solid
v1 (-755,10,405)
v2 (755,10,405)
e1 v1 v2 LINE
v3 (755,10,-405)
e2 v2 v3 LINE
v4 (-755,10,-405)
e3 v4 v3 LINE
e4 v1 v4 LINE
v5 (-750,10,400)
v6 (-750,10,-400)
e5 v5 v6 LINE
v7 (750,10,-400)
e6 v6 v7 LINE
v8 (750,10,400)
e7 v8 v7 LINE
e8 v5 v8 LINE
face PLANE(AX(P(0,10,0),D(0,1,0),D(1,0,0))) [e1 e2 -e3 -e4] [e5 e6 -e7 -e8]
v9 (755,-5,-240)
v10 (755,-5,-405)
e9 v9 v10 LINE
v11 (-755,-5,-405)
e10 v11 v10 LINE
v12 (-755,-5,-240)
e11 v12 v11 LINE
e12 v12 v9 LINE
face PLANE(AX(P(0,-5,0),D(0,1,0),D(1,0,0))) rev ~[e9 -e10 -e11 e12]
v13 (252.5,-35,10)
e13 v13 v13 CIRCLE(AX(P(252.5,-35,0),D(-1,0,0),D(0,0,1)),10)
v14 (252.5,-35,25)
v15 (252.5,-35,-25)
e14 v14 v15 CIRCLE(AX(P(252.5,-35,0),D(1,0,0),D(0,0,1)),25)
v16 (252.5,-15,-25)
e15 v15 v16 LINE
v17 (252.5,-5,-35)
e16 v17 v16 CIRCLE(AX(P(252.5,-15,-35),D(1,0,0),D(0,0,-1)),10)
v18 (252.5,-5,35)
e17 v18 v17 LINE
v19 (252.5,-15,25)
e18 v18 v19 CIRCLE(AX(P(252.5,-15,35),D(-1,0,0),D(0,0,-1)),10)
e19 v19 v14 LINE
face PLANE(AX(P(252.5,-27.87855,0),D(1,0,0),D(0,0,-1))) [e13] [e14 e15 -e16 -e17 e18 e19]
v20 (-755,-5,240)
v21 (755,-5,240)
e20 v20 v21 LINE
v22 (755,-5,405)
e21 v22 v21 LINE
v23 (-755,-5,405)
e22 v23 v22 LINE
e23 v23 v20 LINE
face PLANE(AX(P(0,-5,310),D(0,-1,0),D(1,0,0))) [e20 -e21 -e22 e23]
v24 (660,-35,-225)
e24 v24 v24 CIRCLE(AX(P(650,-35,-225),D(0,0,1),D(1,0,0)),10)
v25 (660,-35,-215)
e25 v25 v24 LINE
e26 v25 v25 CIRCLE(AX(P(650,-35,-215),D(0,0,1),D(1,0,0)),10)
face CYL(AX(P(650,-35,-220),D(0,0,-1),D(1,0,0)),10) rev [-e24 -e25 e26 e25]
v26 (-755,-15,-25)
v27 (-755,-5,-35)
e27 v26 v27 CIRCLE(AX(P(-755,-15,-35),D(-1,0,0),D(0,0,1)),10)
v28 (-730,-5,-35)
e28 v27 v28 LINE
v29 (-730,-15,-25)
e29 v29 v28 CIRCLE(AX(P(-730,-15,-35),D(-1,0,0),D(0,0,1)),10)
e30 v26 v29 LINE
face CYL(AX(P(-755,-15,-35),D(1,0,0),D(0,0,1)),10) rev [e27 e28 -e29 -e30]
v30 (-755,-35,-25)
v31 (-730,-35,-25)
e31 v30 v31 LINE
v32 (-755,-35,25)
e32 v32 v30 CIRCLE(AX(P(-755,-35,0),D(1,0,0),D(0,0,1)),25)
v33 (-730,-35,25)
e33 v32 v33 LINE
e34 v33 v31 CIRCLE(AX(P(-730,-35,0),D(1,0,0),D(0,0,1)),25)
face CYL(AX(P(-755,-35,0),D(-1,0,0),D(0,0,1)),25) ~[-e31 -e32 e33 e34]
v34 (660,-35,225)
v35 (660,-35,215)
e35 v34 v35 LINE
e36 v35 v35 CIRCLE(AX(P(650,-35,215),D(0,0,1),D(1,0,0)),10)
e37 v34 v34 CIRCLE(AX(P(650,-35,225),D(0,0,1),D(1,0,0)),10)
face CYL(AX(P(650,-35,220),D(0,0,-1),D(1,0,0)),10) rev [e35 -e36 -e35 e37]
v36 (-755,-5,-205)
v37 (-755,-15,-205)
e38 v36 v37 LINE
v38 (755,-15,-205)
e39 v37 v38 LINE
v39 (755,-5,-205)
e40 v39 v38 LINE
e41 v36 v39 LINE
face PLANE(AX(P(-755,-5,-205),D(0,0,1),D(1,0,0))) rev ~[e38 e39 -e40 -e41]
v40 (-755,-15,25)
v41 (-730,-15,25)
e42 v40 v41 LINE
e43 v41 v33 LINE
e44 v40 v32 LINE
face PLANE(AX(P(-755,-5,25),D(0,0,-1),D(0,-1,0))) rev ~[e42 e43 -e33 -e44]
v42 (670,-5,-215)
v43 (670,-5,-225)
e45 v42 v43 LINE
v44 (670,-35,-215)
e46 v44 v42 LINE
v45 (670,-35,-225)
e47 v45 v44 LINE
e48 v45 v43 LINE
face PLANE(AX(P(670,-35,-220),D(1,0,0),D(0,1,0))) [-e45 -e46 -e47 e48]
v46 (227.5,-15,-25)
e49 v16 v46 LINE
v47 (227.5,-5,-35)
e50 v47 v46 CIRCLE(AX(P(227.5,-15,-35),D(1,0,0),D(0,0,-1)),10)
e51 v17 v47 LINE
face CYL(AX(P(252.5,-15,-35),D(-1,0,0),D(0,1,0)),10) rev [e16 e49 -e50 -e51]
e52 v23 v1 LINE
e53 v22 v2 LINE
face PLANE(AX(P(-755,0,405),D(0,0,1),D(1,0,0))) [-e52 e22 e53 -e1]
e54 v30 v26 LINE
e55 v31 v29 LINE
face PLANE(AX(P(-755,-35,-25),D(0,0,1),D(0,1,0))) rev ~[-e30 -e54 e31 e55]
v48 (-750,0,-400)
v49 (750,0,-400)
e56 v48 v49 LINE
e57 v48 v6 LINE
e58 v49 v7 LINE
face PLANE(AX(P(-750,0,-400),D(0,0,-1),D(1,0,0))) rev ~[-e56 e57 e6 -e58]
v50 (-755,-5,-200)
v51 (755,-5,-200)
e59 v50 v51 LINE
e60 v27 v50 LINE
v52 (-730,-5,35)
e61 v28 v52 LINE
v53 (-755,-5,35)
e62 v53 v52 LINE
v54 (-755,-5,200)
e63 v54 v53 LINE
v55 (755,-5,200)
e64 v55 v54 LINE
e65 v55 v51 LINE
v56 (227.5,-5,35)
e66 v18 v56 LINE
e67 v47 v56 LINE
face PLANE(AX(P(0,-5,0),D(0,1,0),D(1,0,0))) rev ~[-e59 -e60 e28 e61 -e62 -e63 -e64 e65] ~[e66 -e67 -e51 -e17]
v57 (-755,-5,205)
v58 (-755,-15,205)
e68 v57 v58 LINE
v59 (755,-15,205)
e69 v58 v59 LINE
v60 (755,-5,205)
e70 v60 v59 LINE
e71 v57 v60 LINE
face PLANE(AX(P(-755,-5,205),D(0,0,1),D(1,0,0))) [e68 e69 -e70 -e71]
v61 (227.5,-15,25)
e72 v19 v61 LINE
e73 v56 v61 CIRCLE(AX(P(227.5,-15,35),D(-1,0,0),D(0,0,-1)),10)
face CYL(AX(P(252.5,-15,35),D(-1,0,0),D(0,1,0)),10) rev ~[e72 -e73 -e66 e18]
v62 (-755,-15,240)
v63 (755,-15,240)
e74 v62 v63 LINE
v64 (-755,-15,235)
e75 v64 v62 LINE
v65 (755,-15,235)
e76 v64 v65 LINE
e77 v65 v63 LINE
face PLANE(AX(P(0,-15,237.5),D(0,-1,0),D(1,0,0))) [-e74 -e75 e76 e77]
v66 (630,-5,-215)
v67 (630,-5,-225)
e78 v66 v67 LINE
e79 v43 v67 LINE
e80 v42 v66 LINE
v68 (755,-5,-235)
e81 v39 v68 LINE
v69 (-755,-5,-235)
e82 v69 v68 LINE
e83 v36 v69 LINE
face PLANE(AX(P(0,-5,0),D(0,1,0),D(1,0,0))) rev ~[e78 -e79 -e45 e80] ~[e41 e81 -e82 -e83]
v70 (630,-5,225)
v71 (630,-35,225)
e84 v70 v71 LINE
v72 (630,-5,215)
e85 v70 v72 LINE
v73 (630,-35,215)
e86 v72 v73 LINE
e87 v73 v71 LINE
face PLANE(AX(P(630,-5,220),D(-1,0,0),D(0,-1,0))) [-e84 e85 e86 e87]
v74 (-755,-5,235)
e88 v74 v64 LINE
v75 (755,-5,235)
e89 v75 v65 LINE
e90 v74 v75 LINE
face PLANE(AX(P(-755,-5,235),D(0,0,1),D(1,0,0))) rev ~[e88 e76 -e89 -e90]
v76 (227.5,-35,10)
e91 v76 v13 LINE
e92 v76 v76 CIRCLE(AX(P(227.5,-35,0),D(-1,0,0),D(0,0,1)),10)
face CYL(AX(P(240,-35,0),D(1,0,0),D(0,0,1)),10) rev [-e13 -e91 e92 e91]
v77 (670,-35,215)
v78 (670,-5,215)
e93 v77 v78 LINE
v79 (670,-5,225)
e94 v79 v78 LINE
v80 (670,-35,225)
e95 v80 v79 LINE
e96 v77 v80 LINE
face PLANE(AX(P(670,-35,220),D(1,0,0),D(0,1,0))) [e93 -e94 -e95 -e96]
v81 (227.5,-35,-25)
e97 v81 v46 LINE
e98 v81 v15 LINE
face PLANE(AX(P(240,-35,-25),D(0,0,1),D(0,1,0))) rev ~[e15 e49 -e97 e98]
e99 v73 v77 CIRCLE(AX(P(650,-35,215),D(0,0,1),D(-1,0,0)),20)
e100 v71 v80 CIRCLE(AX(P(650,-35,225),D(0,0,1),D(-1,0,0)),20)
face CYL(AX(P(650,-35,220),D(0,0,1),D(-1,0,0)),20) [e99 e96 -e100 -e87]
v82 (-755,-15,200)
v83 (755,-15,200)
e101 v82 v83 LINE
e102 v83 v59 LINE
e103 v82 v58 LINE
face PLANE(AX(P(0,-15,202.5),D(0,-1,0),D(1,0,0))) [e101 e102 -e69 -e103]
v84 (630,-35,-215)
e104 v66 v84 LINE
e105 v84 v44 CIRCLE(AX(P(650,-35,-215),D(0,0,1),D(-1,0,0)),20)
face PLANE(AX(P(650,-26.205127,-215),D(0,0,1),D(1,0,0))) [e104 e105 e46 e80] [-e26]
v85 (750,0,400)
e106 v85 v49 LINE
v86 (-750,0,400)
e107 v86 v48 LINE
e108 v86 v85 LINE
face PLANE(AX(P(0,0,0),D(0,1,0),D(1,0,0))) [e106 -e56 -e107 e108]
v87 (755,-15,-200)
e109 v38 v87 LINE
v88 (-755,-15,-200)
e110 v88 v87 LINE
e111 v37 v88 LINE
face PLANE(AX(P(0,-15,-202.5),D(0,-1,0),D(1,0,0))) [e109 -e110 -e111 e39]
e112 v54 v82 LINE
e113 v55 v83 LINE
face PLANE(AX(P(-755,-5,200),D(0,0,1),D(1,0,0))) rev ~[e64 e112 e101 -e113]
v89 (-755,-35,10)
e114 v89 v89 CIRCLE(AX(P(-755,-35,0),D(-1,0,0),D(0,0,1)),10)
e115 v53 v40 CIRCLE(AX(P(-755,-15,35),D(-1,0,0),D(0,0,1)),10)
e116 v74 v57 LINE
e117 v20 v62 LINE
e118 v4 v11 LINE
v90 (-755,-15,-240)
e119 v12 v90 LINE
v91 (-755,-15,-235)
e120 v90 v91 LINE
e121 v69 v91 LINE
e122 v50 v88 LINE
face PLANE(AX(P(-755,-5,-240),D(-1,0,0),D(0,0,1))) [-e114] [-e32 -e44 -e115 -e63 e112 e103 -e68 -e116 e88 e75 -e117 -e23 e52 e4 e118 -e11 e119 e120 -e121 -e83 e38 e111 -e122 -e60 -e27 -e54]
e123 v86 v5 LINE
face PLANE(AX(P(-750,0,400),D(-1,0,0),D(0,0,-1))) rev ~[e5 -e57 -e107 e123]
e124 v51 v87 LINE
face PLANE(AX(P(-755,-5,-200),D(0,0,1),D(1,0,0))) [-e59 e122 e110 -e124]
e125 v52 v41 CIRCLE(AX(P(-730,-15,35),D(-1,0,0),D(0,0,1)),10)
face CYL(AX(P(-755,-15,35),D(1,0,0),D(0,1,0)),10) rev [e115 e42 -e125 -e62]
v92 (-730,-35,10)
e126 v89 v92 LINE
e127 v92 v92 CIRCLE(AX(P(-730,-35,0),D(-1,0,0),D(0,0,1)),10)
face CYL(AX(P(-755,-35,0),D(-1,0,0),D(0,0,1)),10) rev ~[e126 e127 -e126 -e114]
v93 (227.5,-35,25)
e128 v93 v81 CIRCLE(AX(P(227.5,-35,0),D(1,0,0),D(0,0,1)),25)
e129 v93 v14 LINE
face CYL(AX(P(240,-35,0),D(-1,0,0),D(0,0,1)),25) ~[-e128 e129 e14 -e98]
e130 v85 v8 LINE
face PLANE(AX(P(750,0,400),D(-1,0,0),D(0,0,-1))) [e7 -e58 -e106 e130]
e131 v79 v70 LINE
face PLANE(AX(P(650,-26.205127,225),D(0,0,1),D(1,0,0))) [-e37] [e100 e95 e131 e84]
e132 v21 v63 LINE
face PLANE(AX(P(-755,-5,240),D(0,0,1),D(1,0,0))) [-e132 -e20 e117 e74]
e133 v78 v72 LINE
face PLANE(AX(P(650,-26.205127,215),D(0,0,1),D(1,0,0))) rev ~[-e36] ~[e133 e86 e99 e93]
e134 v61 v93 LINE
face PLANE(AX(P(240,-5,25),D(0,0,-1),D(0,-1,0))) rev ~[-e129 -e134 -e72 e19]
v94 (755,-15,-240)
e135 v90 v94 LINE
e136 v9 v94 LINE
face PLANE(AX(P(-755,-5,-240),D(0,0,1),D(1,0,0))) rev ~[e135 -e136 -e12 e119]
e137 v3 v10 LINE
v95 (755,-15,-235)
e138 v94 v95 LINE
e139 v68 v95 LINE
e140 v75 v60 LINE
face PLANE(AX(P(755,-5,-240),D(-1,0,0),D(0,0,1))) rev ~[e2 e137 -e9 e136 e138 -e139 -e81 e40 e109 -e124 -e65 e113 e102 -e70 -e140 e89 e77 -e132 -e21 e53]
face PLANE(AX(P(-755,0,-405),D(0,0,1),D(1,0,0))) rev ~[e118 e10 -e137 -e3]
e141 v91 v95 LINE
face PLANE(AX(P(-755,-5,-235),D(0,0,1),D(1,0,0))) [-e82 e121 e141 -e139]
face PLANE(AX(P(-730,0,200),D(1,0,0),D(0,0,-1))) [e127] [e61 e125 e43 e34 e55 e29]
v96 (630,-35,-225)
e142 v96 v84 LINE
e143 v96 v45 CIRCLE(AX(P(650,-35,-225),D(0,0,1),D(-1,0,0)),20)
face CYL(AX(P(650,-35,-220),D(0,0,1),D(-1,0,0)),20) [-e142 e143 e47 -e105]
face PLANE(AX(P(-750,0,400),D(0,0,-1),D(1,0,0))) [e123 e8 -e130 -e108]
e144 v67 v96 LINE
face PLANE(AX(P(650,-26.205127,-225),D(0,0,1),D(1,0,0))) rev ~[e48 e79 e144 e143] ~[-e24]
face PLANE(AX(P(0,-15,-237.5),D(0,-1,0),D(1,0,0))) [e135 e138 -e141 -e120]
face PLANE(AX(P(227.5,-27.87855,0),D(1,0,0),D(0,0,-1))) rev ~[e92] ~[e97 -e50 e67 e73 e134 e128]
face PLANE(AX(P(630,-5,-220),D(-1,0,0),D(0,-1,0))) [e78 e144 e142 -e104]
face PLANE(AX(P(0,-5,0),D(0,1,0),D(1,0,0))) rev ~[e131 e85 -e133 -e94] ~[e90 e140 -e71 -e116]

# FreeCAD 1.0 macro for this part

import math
import FreeCAD as App
import Part
import Sketcher

V = App.Vector


def edges_at(feature, points):
    """Names of the edges that pass closest to the given points."""
    edges = feature.Shape.Edges
    near = lambda p: min(range(len(edges)), key=lambda i: edges[i].distToShape(Part.Vertex(*p))[0])
    return sorted({f"Edge{near(p) + 1}" for p in points})

doc = App.newDocument("Part")
body = doc.addObject("PartDesign::Body", "Body")

# Sketch on XZ plane
sketch1 = body.newObject("Sketcher::SketchObject", "Sketch")
sketch1.AttachmentSupport = (doc.getObject("XZ_Plane"), [""])
sketch1.MapMode = "FlatFace"
sketch1.addGeometry([
    Part.LineSegment(V(-755, -405, 0), V(-755, 405, 0)),  # 0
    Part.LineSegment(V(-755, 405, 0), V(755, 405, 0)),  # 1
    Part.LineSegment(V(755, 405, 0), V(755, -405, 0)),  # 2
    Part.LineSegment(V(755, -405, 0), V(-755, -405, 0)),  # 3
    Part.LineSegment(V(750, 400, 0), V(-750, 400, 0)),  # 4
    Part.LineSegment(V(-750, 400, 0), V(-750, -400, 0)),  # 5
    Part.LineSegment(V(-750, -400, 0), V(750, -400, 0)),  # 6
    Part.LineSegment(V(750, -400, 0), V(750, 400, 0)),  # 7
], False)
sketch1.addConstraint([
    Sketcher.Constraint("Coincident", 0, 2, 1, 1),
    Sketcher.Constraint("Coincident", 1, 2, 2, 1),
    Sketcher.Constraint("Coincident", 2, 2, 3, 1),
    Sketcher.Constraint("Coincident", 3, 2, 0, 1),
    Sketcher.Constraint("Coincident", 4, 2, 5, 1),
    Sketcher.Constraint("Coincident", 5, 2, 6, 1),
    Sketcher.Constraint("Coincident", 6, 2, 7, 1),
    Sketcher.Constraint("Coincident", 7, 2, 4, 1),
    Sketcher.Constraint("Vertical", 0),
    Sketcher.Constraint("Horizontal", 1),
    Sketcher.Constraint("Vertical", 2),
    Sketcher.Constraint("Horizontal", 3),
    Sketcher.Constraint("Horizontal", 4),
    Sketcher.Constraint("Vertical", 5),
    Sketcher.Constraint("Horizontal", 6),
    Sketcher.Constraint("Vertical", 7),
    Sketcher.Constraint("Symmetric", 0, 2, 2, 2, -1, 1),
    Sketcher.Constraint("Symmetric", 4, 2, 6, 2, -1, 1),
    Sketcher.Constraint("DistanceX", 1, 1, 1, 2, 1510.0),
    Sketcher.Constraint("DistanceX", 4, 2, 4, 1, 1500.0),
    Sketcher.Constraint("DistanceY", 0, 1, 0, 2, 810.0),
    Sketcher.Constraint("DistanceY", 5, 2, 5, 1, 800.0),
])
pad1 = body.newObject("PartDesign::Pad", "Pad")
pad1.Profile = sketch1
pad1.Length = 10
pad1.Reversed = True

# Sketch on XZ plane
sketch2 = body.newObject("Sketcher::SketchObject", "Sketch001")
sketch2.AttachmentSupport = (doc.getObject("XZ_Plane"), [""])
sketch2.MapMode = "FlatFace"
sketch2.addGeometry([
    Part.LineSegment(V(-755, -405, 0), V(-755, 405, 0)),  # 0
    Part.LineSegment(V(-755, 405, 0), V(755, 405, 0)),  # 1
    Part.LineSegment(V(755, 405, 0), V(755, -405, 0)),  # 2
    Part.LineSegment(V(755, -405, 0), V(-755, -405, 0)),  # 3
    Part.LineSegment(V(730, 380, 0), V(-730, 380, 0)),  # 4
    Part.LineSegment(V(-730, 380, 0), V(-730, 240, 0)),  # 5
    Part.LineSegment(V(-730, 240, 0), V(730, 240, 0)),  # 6
    Part.LineSegment(V(730, 240, 0), V(730, 380, 0)),  # 7
    Part.LineSegment(V(-700, 200, 0), V(-730, 200, 0)),  # 8
    Part.LineSegment(V(-730, 200, 0), V(-730, -200, 0)),  # 9
    Part.LineSegment(V(-730, -200, 0), V(-700, -200, 0)),  # 10
    Part.LineSegment(V(-700, -200, 0), V(-700, 200, 0)),  # 11
    Part.LineSegment(V(600, 200, 0), V(-600, 200, 0)),  # 12
    Part.LineSegment(V(-600, 200, 0), V(-600, -200, 0)),  # 13
    Part.LineSegment(V(-600, -200, 0), V(600, -200, 0)),  # 14
    Part.LineSegment(V(600, -200, 0), V(600, 200, 0)),  # 15
    Part.LineSegment(V(730, 200, 0), V(700, 200, 0)),  # 16
    Part.LineSegment(V(700, 200, 0), V(700, -200, 0)),  # 17
    Part.LineSegment(V(700, -200, 0), V(730, -200, 0)),  # 18
    Part.LineSegment(V(730, -200, 0), V(730, 200, 0)),  # 19
    Part.LineSegment(V(730, -240, 0), V(-730, -240, 0)),  # 20
    Part.LineSegment(V(-730, -240, 0), V(-730, -380, 0)),  # 21
    Part.LineSegment(V(-730, -380, 0), V(730, -380, 0)),  # 22
    Part.LineSegment(V(730, -380, 0), V(730, -240, 0)),  # 23
], False)
sketch2.addConstraint([
    Sketcher.Constraint("Coincident", 0, 2, 1, 1),
    Sketcher.Constraint("Coincident", 1, 2, 2, 1),
    Sketcher.Constraint("Coincident", 2, 2, 3, 1),
    Sketcher.Constraint("Coincident", 3, 2, 0, 1),
    Sketcher.Constraint("Coincident", 4, 2, 5, 1),
    Sketcher.Constraint("Coincident", 5, 2, 6, 1),
    Sketcher.Constraint("Coincident", 6, 2, 7, 1),
    Sketcher.Constraint("Coincident", 7, 2, 4, 1),
    Sketcher.Constraint("Coincident", 8, 2, 9, 1),
    Sketcher.Constraint("Coincident", 9, 2, 10, 1),
    Sketcher.Constraint("Coincident", 10, 2, 11, 1),
    Sketcher.Constraint("Coincident", 11, 2, 8, 1),
    Sketcher.Constraint("Coincident", 12, 2, 13, 1),
    Sketcher.Constraint("Coincident", 13, 2, 14, 1),
    Sketcher.Constraint("Coincident", 14, 2, 15, 1),
    Sketcher.Constraint("Coincident", 15, 2, 12, 1),
    Sketcher.Constraint("Coincident", 16, 2, 17, 1),
    Sketcher.Constraint("Coincident", 17, 2, 18, 1),
    Sketcher.Constraint("Coincident", 18, 2, 19, 1),
    Sketcher.Constraint("Coincident", 19, 2, 16, 1),
    Sketcher.Constraint("Coincident", 20, 2, 21, 1),
    Sketcher.Constraint("Coincident", 21, 2, 22, 1),
    Sketcher.Constraint("Coincident", 22, 2, 23, 1),
    Sketcher.Constraint("Coincident", 23, 2, 20, 1),
    Sketcher.Constraint("Vertical", 0),
    Sketcher.Constraint("Horizontal", 1),
    Sketcher.Constraint("Vertical", 2),
    Sketcher.Constraint("Horizontal", 3),
    Sketcher.Constraint("Horizontal", 4),
    Sketcher.Constraint("Vertical", 5),
    Sketcher.Constraint("Horizontal", 6),
    Sketcher.Constraint("Vertical", 7),
    Sketcher.Constraint("Horizontal", 8),
    Sketcher.Constraint("Vertical", 9),
    Sketcher.Constraint("Horizontal", 10),
    Sketcher.Constraint("Vertical", 11),
    Sketcher.Constraint("Horizontal", 12),
    Sketcher.Constraint("Vertical", 13),
    Sketcher.Constraint("Horizontal", 14),
    Sketcher.Constraint("Vertical", 15),
    Sketcher.Constraint("Horizontal", 16),
    Sketcher.Constraint("Vertical", 17),
    Sketcher.Constraint("Horizontal", 18),
    Sketcher.Constraint("Vertical", 19),
    Sketcher.Constraint("Horizontal", 20),
    Sketcher.Constraint("Vertical", 21),
    Sketcher.Constraint("Horizontal", 22),
    Sketcher.Constraint("Vertical", 23),
    Sketcher.Constraint("Symmetric", 0, 2, 2, 2, -1, 1),
    Sketcher.Constraint("Symmetric", 12, 2, 14, 2, -1, 1),
    Sketcher.Constraint("Symmetric", 10, 2, 16, 2, -1, 1),
    Sketcher.Constraint("Symmetric", 8, 2, 18, 2, -1, 1),
    Sketcher.Constraint("Symmetric", 6, 2, 20, 2, -1, 1),
    Sketcher.Constraint("Symmetric", 4, 2, 22, 2, -1, 1),
    Sketcher.Constraint("Horizontal", 11, 2, 12, 2),
    Sketcher.Constraint("Horizontal", 10, 2, 13, 2),
    Sketcher.Constraint("Vertical", 5, 2, 8, 2),
    Sketcher.Constraint("Vertical", 7, 2, 18, 2),
    Sketcher.Constraint("DistanceX", 1, 1, 1, 2, 1510.0),
    Sketcher.Constraint("DistanceX", 4, 2, 4, 1, 1460.0),
    Sketcher.Constraint("DistanceX", 8, 2, 8, 1, 30.0),
    Sketcher.Constraint("DistanceX", 12, 2, 12, 1, 1200.0),
    Sketcher.Constraint("DistanceY", 0, 1, 0, 2, 810.0),
    Sketcher.Constraint("DistanceY", 5, 2, 5, 1, 140.0),
    Sketcher.Constraint("DistanceY", 9, 2, 9, 1, 400.0),
    Sketcher.Constraint("DistanceY", -1, 1, 4, 2, 380.0),
])
pad2 = body.newObject("PartDesign::Pad", "Pad001")
pad2.Profile = sketch2
pad2.Length = 5

# Sketch on XZ plane
sketch3 = body.newObject("Sketcher::SketchObject", "Sketch002")
sketch3.AttachmentSupport = (doc.getObject("XZ_Plane"), [""])
sketch3.MapMode = "FlatFace"
sketch3.AttachmentOffset = App.Placement(V(0, 0, 5), App.Rotation())
sketch3.addGeometry([
    Part.LineSegment(V(-755, 240, 0), V(-755, 235, 0)),
    Part.LineSegment(V(-755, 235, 0), V(755, 235, 0)),
    Part.LineSegment(V(755, 235, 0), V(755, 240, 0)),
    Part.LineSegment(V(755, 240, 0), V(-755, 240, 0)),
], False)
sketch3.addConstraint([
    Sketcher.Constraint("Coincident", 0, 2, 1, 1),
    Sketcher.Constraint("Coincident", 1, 2, 2, 1),
    Sketcher.Constraint("Coincident", 2, 2, 3, 1),
    Sketcher.Constraint("Coincident", 3, 2, 0, 1),
    Sketcher.Constraint("Vertical", 0),
    Sketcher.Constraint("Horizontal", 1),
    Sketcher.Constraint("Vertical", 2),
    Sketcher.Constraint("Horizontal", 3),
    Sketcher.Constraint("DistanceX", 1, 1, 1, 2, 1510.0),
    Sketcher.Constraint("DistanceY", 0, 2, 0, 1, 5.0),
    Sketcher.Constraint("DistanceX", 0, 2, -1, 1, 755.0),
    Sketcher.Constraint("DistanceY", -1, 1, 0, 2, 235.0),
])
pad3 = body.newObject("PartDesign::Pad", "Pad002")
pad3.Profile = sketch3
pad3.Length = 10
doc.recompute()

linearpattern = body.newObject("PartDesign::LinearPattern", "LinearPattern")
linearpattern.Originals = [pad3]
linearpattern.Direction = (doc.getObject("Z_Axis"), [""])
linearpattern.Mode = "offset"
linearpattern.Offset = 35
linearpattern.Occurrences = 2
linearpattern.Reversed = True
body.Tip = linearpattern
doc.recompute()

linearpattern2 = body.newObject("PartDesign::LinearPattern", "LinearPattern001")
linearpattern2.Originals = [pad3]
linearpattern2.Direction = (doc.getObject("Z_Axis"), [""])
linearpattern2.Mode = "offset"
linearpattern2.Offset = 440
linearpattern2.Occurrences = 2
linearpattern2.Reversed = True
body.Tip = linearpattern2

# Sketch on XZ plane
sketch4 = body.newObject("Sketcher::SketchObject", "Sketch003")
sketch4.AttachmentSupport = (doc.getObject("XZ_Plane"), [""])
sketch4.MapMode = "FlatFace"
sketch4.AttachmentOffset = App.Placement(V(0, 0, 5), App.Rotation())
sketch4.addGeometry([
    Part.LineSegment(V(-755, -235, 0), V(-755, -240, 0)),
    Part.LineSegment(V(-755, -240, 0), V(755, -240, 0)),
    Part.LineSegment(V(755, -240, 0), V(755, -235, 0)),
    Part.LineSegment(V(755, -235, 0), V(-755, -235, 0)),
], False)
sketch4.addConstraint([
    Sketcher.Constraint("Coincident", 0, 2, 1, 1),
    Sketcher.Constraint("Coincident", 1, 2, 2, 1),
    Sketcher.Constraint("Coincident", 2, 2, 3, 1),
    Sketcher.Constraint("Coincident", 3, 2, 0, 1),
    Sketcher.Constraint("Vertical", 0),
    Sketcher.Constraint("Horizontal", 1),
    Sketcher.Constraint("Vertical", 2),
    Sketcher.Constraint("Horizontal", 3),
    Sketcher.Constraint("DistanceX", 1, 1, 1, 2, 1510.0),
    Sketcher.Constraint("DistanceY", 0, 2, 0, 1, 5.0),
    Sketcher.Constraint("DistanceX", 0, 2, -1, 1, 755.0),
    Sketcher.Constraint("DistanceY", 0, 2, -1, 1, 240.0),
])
pad4 = body.newObject("PartDesign::Pad", "Pad003")
pad4.Profile = sketch4
pad4.Length = 10

# Sketch on XY plane
sketch5 = body.newObject("Sketcher::SketchObject", "Sketch004")
sketch5.AttachmentSupport = (doc.getObject("XY_Plane"), [""])
sketch5.MapMode = "FlatFace"
sketch5.AttachmentOffset = App.Placement(V(0, 0, 220), App.Rotation())
sketch5.addGeometry([
    Part.LineSegment(V(630, -5, 0), V(630, -35, 0)),  # 0
    Part.ArcOfCircle(Part.Circle(V(650, -35, 0), V(0, 0, 1), 20), math.radians(180), math.radians(360)),  # 1
    Part.LineSegment(V(670, -35, 0), V(670, -5, 0)),  # 2
    Part.LineSegment(V(670, -5, 0), V(630, -5, 0)),  # 3
    Part.Circle(V(650, -35, 0), V(0, 0, 1), 10),  # 4
], False)
sketch5.addConstraint([
    Sketcher.Constraint("Tangent", 0, 2, 1, 1),
    Sketcher.Constraint("Tangent", 1, 2, 2, 1),
    Sketcher.Constraint("Coincident", 2, 2, 3, 1),
    Sketcher.Constraint("Coincident", 3, 2, 0, 1),
    Sketcher.Constraint("Vertical", 0),
    Sketcher.Constraint("Vertical", 2),
    Sketcher.Constraint("Horizontal", 3),
    Sketcher.Constraint("Coincident", 4, 3, 1, 3),
    Sketcher.Constraint("Diameter", 4, 20.0),
    Sketcher.Constraint("Radius", 1, 20.0),
    Sketcher.Constraint("DistanceY", 0, 2, 0, 1, 30.0),
    Sketcher.Constraint("DistanceX", -1, 1, 1, 3, 650.0),
    Sketcher.Constraint("DistanceY", 1, 3, -1, 1, 35.0),
])
pad5 = body.newObject("PartDesign::Pad", "Pad004")
pad5.Profile = sketch5
pad5.Length = 10
pad5.Midplane = True
doc.recompute()

linearpattern3 = body.newObject("PartDesign::LinearPattern", "LinearPattern002")
linearpattern3.Originals = [pad5]
linearpattern3.Direction = (doc.getObject("Z_Axis"), [""])
linearpattern3.Mode = "offset"
linearpattern3.Offset = 440
linearpattern3.Occurrences = 2
linearpattern3.Reversed = True
body.Tip = linearpattern3

# Sketch on YZ plane
sketch6 = body.newObject("Sketcher::SketchObject", "Sketch005")
sketch6.AttachmentSupport = (doc.getObject("YZ_Plane"), [""])
sketch6.MapMode = "FlatFace"
sketch6.AttachmentOffset = App.Placement(V(0, 0, -755), App.Rotation())
sketch6.addGeometry([
    Part.LineSegment(V(-5, -25, 0), V(-35, -25, 0)),  # 0
    Part.ArcOfCircle(Part.Circle(V(-35, 0, 0), V(0, 0, 1), 25), math.radians(90), math.radians(270)),  # 1
    Part.LineSegment(V(-35, 25, 0), V(-5, 25, 0)),  # 2
    Part.LineSegment(V(-5, 25, 0), V(-5, -25, 0)),  # 3
    Part.Circle(V(-35, 0, 0), V(0, 0, 1), 10),  # 4
], False)
sketch6.addConstraint([
    Sketcher.Constraint("Tangent", 0, 2, 1, 2),
    Sketcher.Constraint("Tangent", 1, 1, 2, 1),
    Sketcher.Constraint("Coincident", 2, 2, 3, 1),
    Sketcher.Constraint("Coincident", 3, 2, 0, 1),
    Sketcher.Constraint("Horizontal", 0),
    Sketcher.Constraint("Horizontal", 2),
    Sketcher.Constraint("Vertical", 3),
    Sketcher.Constraint("Coincident", 4, 3, 1, 3),
    Sketcher.Constraint("PointOnObject", 1, 3, -1),
    Sketcher.Constraint("Diameter", 4, 20.0),
    Sketcher.Constraint("Radius", 1, 25.0),
    Sketcher.Constraint("DistanceX", 0, 2, 0, 1, 30.0),
    Sketcher.Constraint("DistanceX", 1, 3, -1, 1, 35.0),
])
pad6 = body.newObject("PartDesign::Pad", "Pad005")
pad6.Profile = sketch6
pad6.Length = 25

# Sketch on XZ plane
sketch7 = body.newObject("Sketcher::SketchObject", "Sketch006")
sketch7.AttachmentSupport = (doc.getObject("XZ_Plane"), [""])
sketch7.MapMode = "FlatFace"
sketch7.addGeometry([
    Part.LineSegment(V(200, -200, 0), V(200, 200, 0)),
    Part.LineSegment(V(200, 200, 0), V(280, 200, 0)),
    Part.LineSegment(V(280, 200, 0), V(280, -200, 0)),
    Part.LineSegment(V(280, -200, 0), V(200, -200, 0)),
], False)
sketch7.addConstraint([
    Sketcher.Constraint("Coincident", 0, 2, 1, 1),
    Sketcher.Constraint("Coincident", 1, 2, 2, 1),
    Sketcher.Constraint("Coincident", 2, 2, 3, 1),
    Sketcher.Constraint("Coincident", 3, 2, 0, 1),
    Sketcher.Constraint("Vertical", 0),
    Sketcher.Constraint("Horizontal", 1),
    Sketcher.Constraint("Vertical", 2),
    Sketcher.Constraint("Horizontal", 3),
    Sketcher.Constraint("DistanceX", 1, 1, 1, 2, 80.0),
    Sketcher.Constraint("DistanceY", 0, 1, 0, 2, 400.0),
    Sketcher.Constraint("DistanceX", -1, 1, 0, 2, 200.0),
    Sketcher.Constraint("DistanceY", -1, 1, 0, 2, 200.0),
])
pad7 = body.newObject("PartDesign::Pad", "Pad006")
pad7.Profile = sketch7
pad7.Length = 5

# Sketch on YZ plane
sketch8 = body.newObject("Sketcher::SketchObject", "Sketch007")
sketch8.AttachmentSupport = (doc.getObject("YZ_Plane"), [""])
sketch8.MapMode = "FlatFace"
sketch8.AttachmentOffset = App.Placement(V(0, 0, 240), App.Rotation())
sketch8.addGeometry([
    Part.LineSegment(V(-35, 25, 0), V(-5, 25, 0)),  # 0
    Part.LineSegment(V(-5, 25, 0), V(-5, -25, 0)),  # 1
    Part.LineSegment(V(-5, -25, 0), V(-35, -25, 0)),  # 2
    Part.ArcOfCircle(Part.Circle(V(-35, 0, 0), V(0, 0, 1), 25), math.radians(90), math.radians(270)),  # 3
    Part.Circle(V(-35, 0, 0), V(0, 0, 1), 10),  # 4
], False)
sketch8.addConstraint([
    Sketcher.Constraint("Coincident", 0, 2, 1, 1),
    Sketcher.Constraint("Coincident", 1, 2, 2, 1),
    Sketcher.Constraint("Tangent", 2, 2, 3, 2),
    Sketcher.Constraint("Tangent", 3, 1, 0, 1),
    Sketcher.Constraint("Horizontal", 0),
    Sketcher.Constraint("Vertical", 1),
    Sketcher.Constraint("Horizontal", 2),
    Sketcher.Constraint("Coincident", 4, 3, 3, 3),
    Sketcher.Constraint("PointOnObject", 3, 3, -1),
    Sketcher.Constraint("Diameter", 4, 20.0),
    Sketcher.Constraint("Radius", 3, 25.0),
    Sketcher.Constraint("DistanceX", 0, 1, 0, 2, 30.0),
    Sketcher.Constraint("DistanceX", 3, 3, -1, 1, 35.0),
])
pad8 = body.newObject("PartDesign::Pad", "Pad007")
pad8.Profile = sketch8
pad8.Length = 25
pad8.Midplane = True

# Sketch on YZ plane
sketch9 = body.newObject("Sketcher::SketchObject", "Sketch008")
sketch9.AttachmentSupport = (doc.getObject("YZ_Plane"), [""])
sketch9.MapMode = "FlatFace"
sketch9.AttachmentOffset = App.Placement(V(0, 0, 280), App.Rotation())
sketch9.addGeometry([
    Part.LineSegment(V(0, 200, 0), V(-5, 200, 0)),
    Part.LineSegment(V(-5, 200, 0), V(-5, -200, 0)),
    Part.LineSegment(V(-5, -200, 0), V(0, -200, 0)),
    Part.LineSegment(V(0, -200, 0), V(0, 200, 0)),
], False)
sketch9.addConstraint([
    Sketcher.Constraint("Coincident", 0, 2, 1, 1),
    Sketcher.Constraint("Coincident", 1, 2, 2, 1),
    Sketcher.Constraint("Coincident", 2, 2, 3, 1),
    Sketcher.Constraint("Coincident", 3, 2, 0, 1),
    Sketcher.Constraint("Horizontal", 0),
    Sketcher.Constraint("Vertical", 1),
    Sketcher.Constraint("Horizontal", 2),
    Sketcher.Constraint("Vertical", 3),
    Sketcher.Constraint("Symmetric", 2, 2, 3, 2, -1, 1),
    Sketcher.Constraint("DistanceX", 0, 2, 0, 1, 5.0),
    Sketcher.Constraint("DistanceY", 1, 2, 1, 1, 400.0),
])
pad9 = body.newObject("PartDesign::Pad", "Pad008")
pad9.Profile = sketch9
pad9.Length = 100
doc.recompute()

fillet = body.newObject("PartDesign::Fillet", "Fillet")
fillet.Base = (pad9, edges_at(pad9, [(240, -5, 25)]))
fillet.Radius = 10
doc.recompute()

fillet2 = body.newObject("PartDesign::Fillet", "Fillet001")
fillet2.Base = (fillet, edges_at(fillet, [(240, -5, -25)]))
fillet2.Radius = 10
doc.recompute()

fillet3 = body.newObject("PartDesign::Fillet", "Fillet002")
fillet3.Base = (fillet2, edges_at(fillet2, [(-742.5, -5, 25)]))
fillet3.Radius = 10
doc.recompute()

fillet4 = body.newObject("PartDesign::Fillet", "Fillet003")
fillet4.Base = (fillet3, edges_at(fillet3, [(-742.5, -5, -25)]))
fillet4.Radius = 10

# Sketch on XZ plane
sketch10 = body.newObject("Sketcher::SketchObject", "Sketch009")
sketch10.AttachmentSupport = (doc.getObject("XZ_Plane"), [""])
sketch10.MapMode = "FlatFace"
sketch10.AttachmentOffset = App.Placement(V(0, 0, 5), App.Rotation())
sketch10.addGeometry([
    Part.LineSegment(V(-730, 380, 0), V(-730, 240, 0)),  # 0
    Part.LineSegment(V(-730, 240, 0), V(730, 240, 0)),  # 1
    Part.LineSegment(V(730, 240, 0), V(730, 380, 0)),  # 2
    Part.LineSegment(V(730, 380, 0), V(-730, 380, 0)),  # 3
    Part.LineSegment(V(-730, -240, 0), V(-730, -380, 0)),  # 4
    Part.LineSegment(V(-730, -380, 0), V(730, -380, 0)),  # 5
    Part.LineSegment(V(730, -380, 0), V(730, -240, 0)),  # 6
    Part.LineSegment(V(730, -240, 0), V(-730, -240, 0)),  # 7
    Part.LineSegment(V(-600, 200, 0), V(-600, -200, 0)),  # 8
    Part.LineSegment(V(-600, -200, 0), V(200, -200, 0)),  # 9
    Part.LineSegment(V(200, -200, 0), V(200, 200, 0)),  # 10
    Part.LineSegment(V(200, 200, 0), V(-600, 200, 0)),  # 11
    Part.LineSegment(V(-730, 200, 0), V(-730, -200, 0)),  # 12
    Part.LineSegment(V(-730, -200, 0), V(-700, -200, 0)),  # 13
    Part.LineSegment(V(-700, -200, 0), V(-700, 200, 0)),  # 14
    Part.LineSegment(V(-700, 200, 0), V(-730, 200, 0)),  # 15
    Part.LineSegment(V(380, 200, 0), V(380, -200, 0)),  # 16
    Part.LineSegment(V(380, -200, 0), V(600, -200, 0)),  # 17
    Part.LineSegment(V(600, -200, 0), V(600, 200, 0)),  # 18
    Part.LineSegment(V(600, 200, 0), V(380, 200, 0)),  # 19
    Part.LineSegment(V(700, 200, 0), V(700, -200, 0)),  # 20
    Part.LineSegment(V(700, -200, 0), V(730, -200, 0)),  # 21
    Part.LineSegment(V(730, -200, 0), V(730, 200, 0)),  # 22
    Part.LineSegment(V(730, 200, 0), V(700, 200, 0)),  # 23
], False)
sketch10.addConstraint([
    Sketcher.Constraint("Coincident", 0, 2, 1, 1),
    Sketcher.Constraint("Coincident", 1, 2, 2, 1),
    Sketcher.Constraint("Coincident", 2, 2, 3, 1),
    Sketcher.Constraint("Coincident", 3, 2, 0, 1),
    Sketcher.Constraint("Coincident", 4, 2, 5, 1),
    Sketcher.Constraint("Coincident", 5, 2, 6, 1),
    Sketcher.Constraint("Coincident", 6, 2, 7, 1),
    Sketcher.Constraint("Coincident", 7, 2, 4, 1),
    Sketcher.Constraint("Coincident", 8, 2, 9, 1),
    Sketcher.Constraint("Coincident", 9, 2, 10, 1),
    Sketcher.Constraint("Coincident", 10, 2, 11, 1),
    Sketcher.Constraint("Coincident", 11, 2, 8, 1),
    Sketcher.Constraint("Coincident", 12, 2, 13, 1),
    Sketcher.Constraint("Coincident", 13, 2, 14, 1),
    Sketcher.Constraint("Coincident", 14, 2, 15, 1),
    Sketcher.Constraint("Coincident", 15, 2, 12, 1),
    Sketcher.Constraint("Coincident", 16, 2, 17, 1),
    Sketcher.Constraint("Coincident", 17, 2, 18, 1),
    Sketcher.Constraint("Coincident", 18, 2, 19, 1),
    Sketcher.Constraint("Coincident", 19, 2, 16, 1),
    Sketcher.Constraint("Coincident", 20, 2, 21, 1),
    Sketcher.Constraint("Coincident", 21, 2, 22, 1),
    Sketcher.Constraint("Coincident", 22, 2, 23, 1),
    Sketcher.Constraint("Coincident", 23, 2, 20, 1),
    Sketcher.Constraint("Vertical", 0),
    Sketcher.Constraint("Horizontal", 1),
    Sketcher.Constraint("Vertical", 2),
    Sketcher.Constraint("Horizontal", 3),
    Sketcher.Constraint("Vertical", 4),
    Sketcher.Constraint("Horizontal", 5),
    Sketcher.Constraint("Vertical", 6),
    Sketcher.Constraint("Horizontal", 7),
    Sketcher.Constraint("Vertical", 8),
    Sketcher.Constraint("Horizontal", 9),
    Sketcher.Constraint("Vertical", 10),
    Sketcher.Constraint("Horizontal", 11),
    Sketcher.Constraint("Vertical", 12),
    Sketcher.Constraint("Horizontal", 13),
    Sketcher.Constraint("Vertical", 14),
    Sketcher.Constraint("Horizontal", 15),
    Sketcher.Constraint("Vertical", 16),
    Sketcher.Constraint("Horizontal", 17),
    Sketcher.Constraint("Vertical", 18),
    Sketcher.Constraint("Horizontal", 19),
    Sketcher.Constraint("Vertical", 20),
    Sketcher.Constraint("Horizontal", 21),
    Sketcher.Constraint("Vertical", 22),
    Sketcher.Constraint("Horizontal", 23),
    Sketcher.Constraint("Symmetric", 2, 2, 4, 2, -1, 1),
    Sketcher.Constraint("Symmetric", 0, 2, 6, 2, -1, 1),
    Sketcher.Constraint("Symmetric", 11, 2, 17, 2, -1, 1),
    Sketcher.Constraint("Symmetric", 14, 2, 20, 2, -1, 1),
    Sketcher.Constraint("Symmetric", 12, 2, 22, 2, -1, 1),
    Sketcher.Constraint("Horizontal", 9, 2, 12, 2),
    Sketcher.Constraint("Horizontal", 11, 2, 14, 2),
    Sketcher.Constraint("Horizontal", 13, 2, 16, 2),
    Sketcher.Constraint("Horizontal", 15, 2, 18, 2),
    Sketcher.Constraint("Vertical", 3, 2, 4, 2),
    Sketcher.Constraint("Vertical", 7, 2, 12, 2),
    Sketcher.Constraint("DistanceX", 1, 1, 1, 2, 1460.0),
    Sketcher.Constraint("DistanceX", 9, 1, 9, 2, 800.0),
    Sketcher.Constraint("DistanceX", 13, 1, 13, 2, 30.0),
    Sketcher.Constraint("DistanceX", 17, 1, 17, 2, 220.0),
    Sketcher.Constraint("DistanceY", 0, 2, 0, 1, 140.0),
    Sketcher.Constraint("DistanceY", 8, 2, 8, 1, 400.0),
    Sketcher.Constraint("DistanceY", -1, 1, 0, 2, 240.0),
    Sketcher.Constraint("DistanceX", 8, 2, -1, 1, 600.0),
])
pad10 = body.newObject("PartDesign::Pad", "Pad009")
pad10.Profile = sketch10
pad10.Length = 5
pad10.Reversed = True

doc.recompute()
